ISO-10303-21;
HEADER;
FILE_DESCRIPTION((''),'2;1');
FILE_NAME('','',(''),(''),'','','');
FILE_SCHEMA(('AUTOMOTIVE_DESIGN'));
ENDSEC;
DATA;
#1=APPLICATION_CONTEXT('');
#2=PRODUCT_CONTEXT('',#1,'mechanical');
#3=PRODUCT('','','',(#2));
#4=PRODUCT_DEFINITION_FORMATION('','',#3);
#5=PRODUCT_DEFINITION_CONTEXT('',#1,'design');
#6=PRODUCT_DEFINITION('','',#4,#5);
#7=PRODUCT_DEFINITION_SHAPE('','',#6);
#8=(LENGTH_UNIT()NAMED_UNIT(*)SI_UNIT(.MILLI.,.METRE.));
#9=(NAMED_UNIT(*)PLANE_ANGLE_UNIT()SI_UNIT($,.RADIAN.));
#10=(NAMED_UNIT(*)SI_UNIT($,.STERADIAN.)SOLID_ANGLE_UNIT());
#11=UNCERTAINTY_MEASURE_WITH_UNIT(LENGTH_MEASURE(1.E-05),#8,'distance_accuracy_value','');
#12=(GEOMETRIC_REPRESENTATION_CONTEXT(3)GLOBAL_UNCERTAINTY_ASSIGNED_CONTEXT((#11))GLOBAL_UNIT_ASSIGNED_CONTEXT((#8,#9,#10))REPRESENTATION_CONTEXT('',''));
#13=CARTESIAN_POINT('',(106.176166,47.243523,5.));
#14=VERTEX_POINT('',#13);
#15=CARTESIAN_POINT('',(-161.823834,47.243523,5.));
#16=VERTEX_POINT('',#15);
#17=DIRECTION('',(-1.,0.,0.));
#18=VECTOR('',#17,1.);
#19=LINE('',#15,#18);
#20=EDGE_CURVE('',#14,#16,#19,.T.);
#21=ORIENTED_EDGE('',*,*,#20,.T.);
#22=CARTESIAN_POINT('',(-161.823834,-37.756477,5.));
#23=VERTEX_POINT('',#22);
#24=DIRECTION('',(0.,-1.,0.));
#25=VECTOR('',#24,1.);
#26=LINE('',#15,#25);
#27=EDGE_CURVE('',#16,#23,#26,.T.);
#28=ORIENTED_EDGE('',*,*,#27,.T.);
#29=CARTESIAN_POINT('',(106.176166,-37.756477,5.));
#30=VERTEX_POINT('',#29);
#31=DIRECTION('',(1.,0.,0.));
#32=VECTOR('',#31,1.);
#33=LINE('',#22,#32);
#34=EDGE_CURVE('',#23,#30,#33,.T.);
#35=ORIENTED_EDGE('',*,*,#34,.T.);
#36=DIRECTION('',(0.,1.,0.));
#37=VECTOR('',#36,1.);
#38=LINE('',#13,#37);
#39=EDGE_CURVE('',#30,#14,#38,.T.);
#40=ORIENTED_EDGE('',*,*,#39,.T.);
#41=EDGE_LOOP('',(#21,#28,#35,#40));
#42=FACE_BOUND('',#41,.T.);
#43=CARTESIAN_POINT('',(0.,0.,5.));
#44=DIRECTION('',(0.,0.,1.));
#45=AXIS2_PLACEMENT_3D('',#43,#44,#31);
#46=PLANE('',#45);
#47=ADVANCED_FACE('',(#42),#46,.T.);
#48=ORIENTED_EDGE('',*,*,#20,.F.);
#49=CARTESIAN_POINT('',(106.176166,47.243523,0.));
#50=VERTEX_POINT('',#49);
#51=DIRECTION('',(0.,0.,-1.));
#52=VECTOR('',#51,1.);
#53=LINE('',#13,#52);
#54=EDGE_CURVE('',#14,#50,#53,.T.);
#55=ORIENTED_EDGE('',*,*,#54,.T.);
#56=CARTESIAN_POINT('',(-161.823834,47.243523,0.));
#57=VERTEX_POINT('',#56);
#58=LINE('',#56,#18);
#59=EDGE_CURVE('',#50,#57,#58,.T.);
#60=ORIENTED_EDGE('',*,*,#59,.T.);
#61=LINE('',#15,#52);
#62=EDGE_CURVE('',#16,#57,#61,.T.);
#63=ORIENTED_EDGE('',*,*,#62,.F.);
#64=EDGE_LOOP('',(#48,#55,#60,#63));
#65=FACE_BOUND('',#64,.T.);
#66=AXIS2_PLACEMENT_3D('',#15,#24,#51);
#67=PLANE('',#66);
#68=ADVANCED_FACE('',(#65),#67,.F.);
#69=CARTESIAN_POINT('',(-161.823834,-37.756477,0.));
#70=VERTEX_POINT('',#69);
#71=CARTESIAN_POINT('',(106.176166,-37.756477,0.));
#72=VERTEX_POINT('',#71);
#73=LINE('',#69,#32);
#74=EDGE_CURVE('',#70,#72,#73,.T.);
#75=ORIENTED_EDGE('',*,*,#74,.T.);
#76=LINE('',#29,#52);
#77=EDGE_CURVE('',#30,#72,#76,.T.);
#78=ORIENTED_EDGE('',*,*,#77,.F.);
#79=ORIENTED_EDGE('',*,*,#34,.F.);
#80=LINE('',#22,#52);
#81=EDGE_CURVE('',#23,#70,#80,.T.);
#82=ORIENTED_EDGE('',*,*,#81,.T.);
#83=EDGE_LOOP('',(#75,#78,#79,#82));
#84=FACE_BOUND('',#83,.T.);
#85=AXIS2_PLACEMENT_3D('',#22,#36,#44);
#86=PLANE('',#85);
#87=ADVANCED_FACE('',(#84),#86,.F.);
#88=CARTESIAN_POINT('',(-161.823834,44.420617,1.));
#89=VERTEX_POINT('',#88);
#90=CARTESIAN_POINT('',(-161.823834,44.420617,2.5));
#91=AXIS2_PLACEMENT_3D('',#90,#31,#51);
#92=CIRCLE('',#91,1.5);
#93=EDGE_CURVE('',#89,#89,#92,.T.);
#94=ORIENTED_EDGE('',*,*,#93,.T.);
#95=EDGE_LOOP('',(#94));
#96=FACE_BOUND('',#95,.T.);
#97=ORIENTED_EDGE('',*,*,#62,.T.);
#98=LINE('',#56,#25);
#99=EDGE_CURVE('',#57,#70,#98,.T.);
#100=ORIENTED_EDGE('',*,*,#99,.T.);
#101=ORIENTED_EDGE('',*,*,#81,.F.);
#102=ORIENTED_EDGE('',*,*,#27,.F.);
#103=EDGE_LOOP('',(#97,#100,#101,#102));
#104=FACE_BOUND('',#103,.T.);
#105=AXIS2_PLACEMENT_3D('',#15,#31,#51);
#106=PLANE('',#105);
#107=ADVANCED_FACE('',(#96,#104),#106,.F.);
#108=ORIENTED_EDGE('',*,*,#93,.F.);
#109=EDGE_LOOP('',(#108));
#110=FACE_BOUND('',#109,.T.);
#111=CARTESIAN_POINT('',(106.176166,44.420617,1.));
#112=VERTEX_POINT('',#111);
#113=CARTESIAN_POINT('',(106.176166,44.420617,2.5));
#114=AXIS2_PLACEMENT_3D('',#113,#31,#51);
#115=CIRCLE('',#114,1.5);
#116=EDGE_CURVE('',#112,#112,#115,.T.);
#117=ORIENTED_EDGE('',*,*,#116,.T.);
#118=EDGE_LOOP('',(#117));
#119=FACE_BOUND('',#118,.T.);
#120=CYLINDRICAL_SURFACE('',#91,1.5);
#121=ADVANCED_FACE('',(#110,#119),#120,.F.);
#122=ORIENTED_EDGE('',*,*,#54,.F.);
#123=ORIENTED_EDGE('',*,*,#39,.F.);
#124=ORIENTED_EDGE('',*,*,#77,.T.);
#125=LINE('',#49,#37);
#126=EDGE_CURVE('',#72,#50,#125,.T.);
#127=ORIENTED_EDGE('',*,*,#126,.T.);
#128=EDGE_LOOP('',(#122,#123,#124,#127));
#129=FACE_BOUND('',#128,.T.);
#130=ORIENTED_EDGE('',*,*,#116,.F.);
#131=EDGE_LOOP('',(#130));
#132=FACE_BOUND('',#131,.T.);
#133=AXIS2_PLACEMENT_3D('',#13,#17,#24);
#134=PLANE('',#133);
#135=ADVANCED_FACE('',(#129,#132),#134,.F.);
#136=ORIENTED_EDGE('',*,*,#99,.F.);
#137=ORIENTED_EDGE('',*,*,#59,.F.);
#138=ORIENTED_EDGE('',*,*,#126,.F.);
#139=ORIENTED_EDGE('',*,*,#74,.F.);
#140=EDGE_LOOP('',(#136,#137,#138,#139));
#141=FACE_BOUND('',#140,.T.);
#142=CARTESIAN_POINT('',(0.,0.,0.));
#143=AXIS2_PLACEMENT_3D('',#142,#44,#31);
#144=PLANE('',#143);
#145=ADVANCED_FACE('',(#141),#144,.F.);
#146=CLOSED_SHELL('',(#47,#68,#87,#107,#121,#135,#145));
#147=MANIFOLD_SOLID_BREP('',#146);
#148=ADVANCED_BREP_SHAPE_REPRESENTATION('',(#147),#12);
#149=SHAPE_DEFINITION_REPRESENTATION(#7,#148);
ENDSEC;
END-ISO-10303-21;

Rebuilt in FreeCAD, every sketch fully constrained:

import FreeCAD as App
import Part
import Sketcher

V = App.Vector


def add_polygon(sketch, points):
    """Adds a closed chain of lines whose ends are joined by coincident constraints."""
    first, n = sketch.GeometryCount, len(points)
    for a, b in zip(points, points[1:] + points[:1]):
        sketch.addGeometry(Part.LineSegment(App.Vector(*a, 0), App.Vector(*b, 0)), False)
    for i in range(n):
        sketch.addConstraint(Sketcher.Constraint("Coincident", first + i, 2, first + (i + 1) % n, 1))

doc = App.newDocument("Part")
body = doc.addObject("PartDesign::Body", "Body")

sketch1 = doc.addObject("Sketcher::SketchObject", "Sketch")
body.addObject(sketch1)
sketch1.AttachmentSupport = (doc.XY_Plane, [""])
sketch1.MapMode = "FlatFace"
add_polygon(sketch1, [(-162, 47), (-162, -38), (106, -38), (106, 47)])
sketch1.addConstraint(Sketcher.Constraint("Vertical", 0))
sketch1.addConstraint(Sketcher.Constraint("Horizontal", 1))
sketch1.addConstraint(Sketcher.Constraint("Vertical", 2))
sketch1.addConstraint(Sketcher.Constraint("Horizontal", 3))
sketch1.addConstraint(Sketcher.Constraint("DistanceX", 1, 1, 1, 2, 268.0))
sketch1.addConstraint(Sketcher.Constraint("DistanceY", 0, 2, 0, 1, 85.0))
sketch1.addConstraint(Sketcher.Constraint("DistanceX", 0, 2, -1, 1, 161.823834))
sketch1.addConstraint(Sketcher.Constraint("DistanceY", 0, 2, -1, 1, 37.756477))
pad1 = doc.addObject("PartDesign::Pad", "Pad")
body.addObject(pad1)
pad1.Profile = sketch1
pad1.Length = 5

sketch2 = doc.addObject("Sketcher::SketchObject", "Sketch001")
body.addObject(sketch2)
sketch2.AttachmentSupport = (doc.YZ_Plane, [""])
sketch2.MapMode = "FlatFace"
sketch2.AttachmentOffset = App.Placement(V(0, 0, 106.176166), App.Rotation())
sketch2.addGeometry(Part.Circle(V(44.4, 2.5, 0), V(0, 0, 1), 1.5), False)
sketch2.addConstraint(Sketcher.Constraint("Diameter", 0, 3.0))
sketch2.addConstraint(Sketcher.Constraint("DistanceY", -1, 1, 0, 3, 2.5))
sketch2.addConstraint(Sketcher.Constraint("DistanceX", -1, 1, 0, 3, 44.420617))
pocket1 = doc.addObject("PartDesign::Pocket", "Pocket")
body.addObject(pocket1)
pocket1.Profile = sketch2
pocket1.Type = "ThroughAll"

doc.recompute()
